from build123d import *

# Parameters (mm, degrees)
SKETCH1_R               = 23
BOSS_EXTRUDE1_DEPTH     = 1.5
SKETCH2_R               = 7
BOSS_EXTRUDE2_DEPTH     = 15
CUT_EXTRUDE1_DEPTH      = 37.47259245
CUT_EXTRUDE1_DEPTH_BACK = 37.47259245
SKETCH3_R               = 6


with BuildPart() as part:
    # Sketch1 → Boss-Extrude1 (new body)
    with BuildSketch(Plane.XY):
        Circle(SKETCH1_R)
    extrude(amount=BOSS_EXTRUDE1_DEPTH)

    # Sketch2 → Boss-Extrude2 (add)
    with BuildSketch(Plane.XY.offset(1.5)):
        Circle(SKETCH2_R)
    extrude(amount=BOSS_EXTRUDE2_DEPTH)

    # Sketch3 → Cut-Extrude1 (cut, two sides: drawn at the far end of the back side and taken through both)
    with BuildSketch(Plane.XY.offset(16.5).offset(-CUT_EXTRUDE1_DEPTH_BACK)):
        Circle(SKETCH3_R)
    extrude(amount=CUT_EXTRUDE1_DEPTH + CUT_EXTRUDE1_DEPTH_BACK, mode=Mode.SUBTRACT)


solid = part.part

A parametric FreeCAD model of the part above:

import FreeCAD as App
import Part
import Sketcher

doc = App.newDocument("Part")
body = doc.addObject("PartDesign::Body", "Body")

# Sketch on XY plane
sketch1 = doc.addObject("Sketcher::SketchObject", "Sketch")
body.addObject(sketch1)
sketch1.AttachmentSupport = (doc.XY_Plane, [""])
sketch1.MapMode = "FlatFace"
sketch1.addGeometry(Part.Circle(App.Vector(0, 0, 0), App.Vector(0, 0, 1), 23), False)
sketch1.addConstraint([
    Sketcher.Constraint("Coincident", 0, 3, -1, 1),
    Sketcher.Constraint("Diameter", 0, 46.0),
])
pad1 = doc.addObject("PartDesign::Pad", "Pad")
body.addObject(pad1)
pad1.Profile = sketch1
pad1.Length = 1.5

# Sketch on XY plane
sketch2 = doc.addObject("Sketcher::SketchObject", "Sketch001")
body.addObject(sketch2)
sketch2.AttachmentSupport = (doc.XY_Plane, [""])
sketch2.MapMode = "FlatFace"
sketch2.AttachmentOffset = App.Placement(App.Vector(0, 0, 1.5), App.Rotation())
sketch2.addGeometry(Part.Circle(App.Vector(0, 0, 0), App.Vector(0, 0, 1), 7), False)
sketch2.addConstraint([
    Sketcher.Constraint("Coincident", 0, 3, -1, 1),
    Sketcher.Constraint("Diameter", 0, 14.0),
])
pad2 = doc.addObject("PartDesign::Pad", "Pad001")
body.addObject(pad2)
pad2.Profile = sketch2
pad2.Length = 15

# Sketch on XY plane
sketch3 = doc.addObject("Sketcher::SketchObject", "Sketch002")
body.addObject(sketch3)
sketch3.AttachmentSupport = (doc.XY_Plane, [""])
sketch3.MapMode = "FlatFace"
sketch3.AttachmentOffset = App.Placement(App.Vector(0, 0, 16.5), App.Rotation())
sketch3.addGeometry(Part.Circle(App.Vector(0, 0, 0), App.Vector(0, 0, 1), 6), False)
sketch3.addConstraint([
    Sketcher.Constraint("Coincident", 0, 3, -1, 1),
    Sketcher.Constraint("Diameter", 0, 12.0),
])
pocket1 = doc.addObject("PartDesign::Pocket", "Pocket")
body.addObject(pocket1)
pocket1.Profile = sketch3
pocket1.Type = "ThroughAll"
pocket1.Midplane = True

doc.recompute()
